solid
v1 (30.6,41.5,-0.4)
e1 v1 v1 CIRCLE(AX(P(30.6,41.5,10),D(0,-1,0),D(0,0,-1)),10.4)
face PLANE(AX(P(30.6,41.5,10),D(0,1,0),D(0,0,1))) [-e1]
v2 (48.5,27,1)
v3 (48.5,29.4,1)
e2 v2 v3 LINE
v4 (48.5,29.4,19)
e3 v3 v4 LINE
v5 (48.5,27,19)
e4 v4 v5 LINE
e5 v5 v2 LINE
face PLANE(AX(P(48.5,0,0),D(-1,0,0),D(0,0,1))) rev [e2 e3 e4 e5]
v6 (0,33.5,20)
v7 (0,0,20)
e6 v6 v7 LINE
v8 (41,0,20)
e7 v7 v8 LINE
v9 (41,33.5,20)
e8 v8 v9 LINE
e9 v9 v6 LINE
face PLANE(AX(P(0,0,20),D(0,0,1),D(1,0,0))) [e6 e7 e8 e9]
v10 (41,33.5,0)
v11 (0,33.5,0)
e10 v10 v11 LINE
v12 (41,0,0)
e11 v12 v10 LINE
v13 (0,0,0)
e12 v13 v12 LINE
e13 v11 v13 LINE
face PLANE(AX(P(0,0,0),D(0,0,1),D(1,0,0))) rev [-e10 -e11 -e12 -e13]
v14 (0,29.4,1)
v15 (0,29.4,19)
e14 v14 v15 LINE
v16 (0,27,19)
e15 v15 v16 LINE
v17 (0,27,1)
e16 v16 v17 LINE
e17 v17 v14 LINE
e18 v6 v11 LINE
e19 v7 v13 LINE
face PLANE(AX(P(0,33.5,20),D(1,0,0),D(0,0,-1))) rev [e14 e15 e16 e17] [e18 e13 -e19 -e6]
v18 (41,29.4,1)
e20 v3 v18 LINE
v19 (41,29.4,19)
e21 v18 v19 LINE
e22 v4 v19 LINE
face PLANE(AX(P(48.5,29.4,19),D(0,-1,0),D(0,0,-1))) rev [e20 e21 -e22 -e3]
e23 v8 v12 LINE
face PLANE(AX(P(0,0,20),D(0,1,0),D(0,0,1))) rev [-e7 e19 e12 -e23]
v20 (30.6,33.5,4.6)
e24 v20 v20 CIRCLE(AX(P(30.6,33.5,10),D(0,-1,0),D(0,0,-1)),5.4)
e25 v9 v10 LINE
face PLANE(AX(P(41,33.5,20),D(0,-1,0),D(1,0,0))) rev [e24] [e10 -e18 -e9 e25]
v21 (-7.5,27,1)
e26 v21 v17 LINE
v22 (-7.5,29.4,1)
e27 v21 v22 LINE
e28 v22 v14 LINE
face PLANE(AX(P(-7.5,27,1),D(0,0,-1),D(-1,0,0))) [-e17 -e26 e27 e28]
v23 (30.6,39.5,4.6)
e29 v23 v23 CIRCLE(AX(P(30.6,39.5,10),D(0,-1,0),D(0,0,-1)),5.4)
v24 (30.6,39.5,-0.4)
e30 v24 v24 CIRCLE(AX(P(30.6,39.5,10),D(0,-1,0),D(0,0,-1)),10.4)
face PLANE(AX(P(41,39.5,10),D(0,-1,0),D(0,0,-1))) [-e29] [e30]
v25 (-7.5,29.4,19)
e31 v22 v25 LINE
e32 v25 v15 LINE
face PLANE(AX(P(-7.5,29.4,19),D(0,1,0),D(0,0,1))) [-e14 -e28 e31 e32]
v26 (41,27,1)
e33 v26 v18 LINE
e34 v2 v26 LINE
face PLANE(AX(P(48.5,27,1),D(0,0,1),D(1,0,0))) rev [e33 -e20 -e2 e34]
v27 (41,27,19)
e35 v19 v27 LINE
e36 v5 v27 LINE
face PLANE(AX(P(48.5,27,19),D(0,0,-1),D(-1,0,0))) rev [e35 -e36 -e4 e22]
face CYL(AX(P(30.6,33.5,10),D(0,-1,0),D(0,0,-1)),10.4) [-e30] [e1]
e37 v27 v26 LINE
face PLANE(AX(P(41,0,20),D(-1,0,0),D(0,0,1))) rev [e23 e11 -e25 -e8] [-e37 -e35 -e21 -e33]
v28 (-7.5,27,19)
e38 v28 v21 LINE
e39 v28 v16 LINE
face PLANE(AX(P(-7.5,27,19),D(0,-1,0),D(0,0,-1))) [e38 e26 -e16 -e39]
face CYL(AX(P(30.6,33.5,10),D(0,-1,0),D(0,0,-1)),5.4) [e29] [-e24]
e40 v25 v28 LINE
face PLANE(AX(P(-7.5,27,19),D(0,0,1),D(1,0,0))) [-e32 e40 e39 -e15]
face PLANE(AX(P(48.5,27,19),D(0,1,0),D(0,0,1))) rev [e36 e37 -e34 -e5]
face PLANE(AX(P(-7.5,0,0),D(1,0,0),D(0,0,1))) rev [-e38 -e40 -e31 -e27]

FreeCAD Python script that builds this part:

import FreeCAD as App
import Part
import Sketcher

V = App.Vector
Q = App.Units.Quantity


def add_polygon(sketch, points):
    """Adds a closed chain of lines whose ends are joined by coincident constraints."""
    first, n = sketch.GeometryCount, len(points)
    for a, b in zip(points, points[1:] + points[:1]):
        sketch.addGeometry(Part.LineSegment(App.Vector(*a, 0), App.Vector(*b, 0)), False)
    for i in range(n):
        sketch.addConstraint(Sketcher.Constraint("Coincident", first + i, 2, first + (i + 1) % n, 1))

doc = App.newDocument("Part")
body = doc.addObject("PartDesign::Body", "Body")

# Sketch on XY plane
sketch1 = body.newObject("Sketcher::SketchObject", "Sketch")
sketch1.AttachmentSupport = (doc.getObject("XY_Plane"), [""])
sketch1.MapMode = "FlatFace"
add_polygon(sketch1, [(0, 34), (0, 0), (41, 0), (41, 34)])  # lines 0-3
sketch1.addConstraint([
    Sketcher.Constraint("Vertical", 0),
    Sketcher.Constraint("Horizontal", 1),
    Sketcher.Constraint("Vertical", 2),
    Sketcher.Constraint("Horizontal", 3),
    Sketcher.Constraint("Coincident", 0, 2, -1, 1),
    Sketcher.Constraint("DistanceX", 1, 1, 1, 2, Q("41 mm")),
    Sketcher.Constraint("DistanceY", 0, 2, 0, 1, Q("33.5 mm")),
])
pad1 = body.newObject("PartDesign::Pad", "Pad")
pad1.Profile = sketch1
pad1.Length = 20

# Sketch on YZ plane
sketch2 = body.newObject("Sketcher::SketchObject", "Sketch001")
sketch2.AttachmentSupport = (doc.getObject("YZ_Plane"), [""])
sketch2.MapMode = "FlatFace"
sketch2.AttachmentOffset = App.Placement(V(0, 0, 41), App.Rotation())
add_polygon(sketch2, [(29.4, 19), (27, 19), (27, 1), (29.4, 1)])  # lines 0-3
sketch2.addConstraint([
    Sketcher.Constraint("Horizontal", 0),
    Sketcher.Constraint("Vertical", 1),
    Sketcher.Constraint("Horizontal", 2),
    Sketcher.Constraint("Vertical", 3),
    Sketcher.Constraint("DistanceY", 1, 2, 1, 1, Q("18 mm")),
    Sketcher.Constraint("DistanceX", 0, 2, 0, 1, Q("2.4 mm")),
    Sketcher.Constraint("DistanceX", -1, 1, 0, 2, Q("27 mm")),
    Sketcher.Constraint("DistanceY", -1, 1, 0, 2, Q("19 mm")),
])
pad2 = body.newObject("PartDesign::Pad", "Pad001")
pad2.Profile = sketch2
pad2.Length = 7.5
doc.recompute()

datumplane = body.newObject("PartDesign::Plane", "DatumPlane")
datumplane.AttachmentSupport = (doc.getObject("YZ_Plane"), [""])
datumplane.MapMode = "FlatFace"
datumplane.AttachmentOffset = App.Placement(V(0, 0, 20.5), App.Rotation())
mirrored = body.newObject("PartDesign::Mirrored", "Mirrored")
mirrored.Originals = [pad2]
mirrored.MirrorPlane = (datumplane, [""])
body.Tip = mirrored

# Sketch on XY plane
sketch3 = body.newObject("Sketcher::SketchObject", "Sketch002")
sketch3.AttachmentSupport = (doc.getObject("XY_Plane"), [""])
sketch3.MapMode = "FlatFace"
sketch3.AttachmentOffset = App.Placement(V(0, 0, 10), App.Rotation())
add_polygon(sketch3, [(30.6, 41.5), (30.6, 33.5), (36, 33.5), (36, 39.5), (41, 39.5), (41, 41.5)])  # lines 0-5
sketch3.addGeometry(Part.LineSegment(V(30.6, 33.5, 0), V(30.6, 41.5, 0)), True)  # axis
sketch3.addConstraint([
    Sketcher.Constraint("Vertical", 0),
    Sketcher.Constraint("Horizontal", 1),
    Sketcher.Constraint("Vertical", 2),
    Sketcher.Constraint("Horizontal", 3),
    Sketcher.Constraint("Vertical", 4),
    Sketcher.Constraint("Horizontal", 5),
    Sketcher.Constraint("Vertical", 6),
    Sketcher.Constraint("Coincident", 6, 1, 0, 2),
    Sketcher.Constraint("Horizontal", 4, 2, 6, 2),
    Sketcher.Constraint("DistanceX", 3, 1, 3, 2, Q("5 mm")),
    Sketcher.Constraint("DistanceY", 0, 2, 0, 1, Q("8 mm")),
    Sketcher.Constraint("DistanceY", 2, 1, 2, 2, Q("6 mm")),
    Sketcher.Constraint("DistanceX", 1, 1, 1, 2, Q("5.4 mm")),
    Sketcher.Constraint("DistanceX", -1, 1, 1, 2, Q("36 mm")),
    Sketcher.Constraint("DistanceY", -1, 1, 0, 2, Q("33.5 mm")),
])
revolution = body.newObject("PartDesign::Revolution", "Revolution")
revolution.Profile = sketch3
revolution.ReferenceAxis = (sketch3, ["Axis0"])
revolution.Angle = 360

doc.recompute()
